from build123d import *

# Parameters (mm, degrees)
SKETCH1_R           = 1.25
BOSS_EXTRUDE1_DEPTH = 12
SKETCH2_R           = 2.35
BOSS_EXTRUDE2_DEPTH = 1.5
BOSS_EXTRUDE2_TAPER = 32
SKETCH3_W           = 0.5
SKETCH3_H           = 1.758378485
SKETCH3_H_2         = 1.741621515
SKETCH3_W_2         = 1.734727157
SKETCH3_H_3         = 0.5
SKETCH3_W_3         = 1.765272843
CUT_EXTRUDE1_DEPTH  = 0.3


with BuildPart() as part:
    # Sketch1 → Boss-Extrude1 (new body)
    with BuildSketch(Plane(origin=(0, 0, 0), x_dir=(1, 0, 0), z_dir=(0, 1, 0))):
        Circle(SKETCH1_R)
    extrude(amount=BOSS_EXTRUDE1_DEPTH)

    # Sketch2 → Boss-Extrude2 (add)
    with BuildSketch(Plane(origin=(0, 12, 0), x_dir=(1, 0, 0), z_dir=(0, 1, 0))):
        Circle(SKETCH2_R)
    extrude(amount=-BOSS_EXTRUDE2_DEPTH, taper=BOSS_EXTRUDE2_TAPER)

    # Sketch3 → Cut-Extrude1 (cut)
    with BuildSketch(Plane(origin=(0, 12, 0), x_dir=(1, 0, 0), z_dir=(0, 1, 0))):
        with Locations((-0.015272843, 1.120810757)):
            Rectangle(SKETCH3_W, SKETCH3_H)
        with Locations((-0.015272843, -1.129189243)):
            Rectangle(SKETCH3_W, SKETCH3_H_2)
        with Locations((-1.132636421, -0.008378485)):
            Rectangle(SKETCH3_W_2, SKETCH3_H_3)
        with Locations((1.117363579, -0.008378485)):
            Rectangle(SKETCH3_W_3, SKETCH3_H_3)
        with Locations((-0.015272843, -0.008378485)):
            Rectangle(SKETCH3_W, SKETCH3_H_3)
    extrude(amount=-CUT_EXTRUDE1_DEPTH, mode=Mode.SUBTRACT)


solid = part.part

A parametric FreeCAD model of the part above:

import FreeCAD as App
import Part
import Sketcher
from FreeCAD import Vector


def add_polygon(sketch, points):
    """Adds a closed chain of lines whose ends are joined by coincident constraints."""
    first, n = sketch.GeometryCount, len(points)
    for a, b in zip(points, points[1:] + points[:1]):
        sketch.addGeometry(Part.LineSegment(App.Vector(*a, 0), App.Vector(*b, 0)), False)
    for i in range(n):
        sketch.addConstraint(Sketcher.Constraint("Coincident", first + i, 2, first + (i + 1) % n, 1))

doc = App.newDocument("Part")
params = doc.addObject("Spreadsheet::Sheet", "Params")
for row, (alias, value) in enumerate([
    ("sketch1_diameter", "2.5 mm"),
    ("pad1_length", "12 mm"),
    ("sketch2_diameter", "4.7 mm"),
    ("pad2_length", "1.5 mm"),
    ("pad2_taper", "-32 deg"),
    ("sketch3_width", "0.5 mm"),
    ("pocket1_length", "0.3 mm"),
], start=1):
    params.set(f"A{row}", alias)
    params.set(f"B{row}", "=" + value)
    params.setAlias(f"B{row}", alias)

body = doc.addObject("PartDesign::Body", "Body")

sketch1 = body.newObject("Sketcher::SketchObject", "Sketch")
sketch1.AttachmentSupport = (doc.getObject("XZ_Plane"), [""])
sketch1.MapMode = "FlatFace"
sketch1.addGeometry(Part.Circle(Vector(0, 0, 0), Vector(0, 0, 1), 1.25), False)
sketch1.addConstraint(Sketcher.Constraint("Coincident", 0, 3, -1, 1))
sketch1.addConstraint(Sketcher.Constraint("Diameter", 0, 2.5))
sketch1.setExpression("Constraints[1]", "Params.sketch1_diameter")
pad1 = body.newObject("PartDesign::Pad", "Pad")
pad1.Profile = sketch1
pad1.setExpression("Length", "Params.pad1_length")
pad1.Reversed = True

sketch2 = body.newObject("Sketcher::SketchObject", "Sketch001")
sketch2.AttachmentSupport = (doc.getObject("XZ_Plane"), [""])
sketch2.MapMode = "FlatFace"
sketch2.AttachmentOffset = App.Placement(Vector(0, 0, -12), App.Rotation())
sketch2.addGeometry(Part.Circle(Vector(0, 0, 0), Vector(0, 0, 1), 2.35), False)
sketch2.addConstraint(Sketcher.Constraint("Coincident", 0, 3, -1, 1))
sketch2.addConstraint(Sketcher.Constraint("Diameter", 0, 4.7))
sketch2.setExpression("Constraints[1]", "Params.sketch2_diameter")
pad2 = body.newObject("PartDesign::Pad", "Pad001")
pad2.Profile = sketch2
pad2.setExpression("Length", "Params.pad2_length")
pad2.setExpression("TaperAngle", "Params.pad2_taper")

sketch3 = body.newObject("Sketcher::SketchObject", "Sketch002")
sketch3.AttachmentSupport = (doc.getObject("XZ_Plane"), [""])
sketch3.MapMode = "FlatFace"
sketch3.AttachmentOffset = App.Placement(Vector(0, 0, -12), App.Rotation())
add_polygon(sketch3, [(-0.265273, -2), (-0.265273, -0.241622), (-2, -0.241622), (-2, 0.258378), (-0.265273, 0.258378), (-0.265273, 2), (0.234727, 2), (0.234727, 0.258378), (2, 0.258378), (2, -0.241622), (0.234727, -0.241622), (0.234727, -2)])
sketch3.addConstraint(Sketcher.Constraint("Vertical", 0))
sketch3.addConstraint(Sketcher.Constraint("Horizontal", 1))
sketch3.addConstraint(Sketcher.Constraint("Vertical", 2))
sketch3.addConstraint(Sketcher.Constraint("Horizontal", 3))
sketch3.addConstraint(Sketcher.Constraint("Vertical", 4))
sketch3.addConstraint(Sketcher.Constraint("Horizontal", 5))
sketch3.addConstraint(Sketcher.Constraint("Vertical", 6))
sketch3.addConstraint(Sketcher.Constraint("Horizontal", 7))
sketch3.addConstraint(Sketcher.Constraint("Vertical", 8))
sketch3.addConstraint(Sketcher.Constraint("Horizontal", 9))
sketch3.addConstraint(Sketcher.Constraint("Vertical", 10))
sketch3.addConstraint(Sketcher.Constraint("Horizontal", 11))
sketch3.addConstraint(Sketcher.Constraint("Symmetric", 2, 2, 7, 2, -2))
sketch3.addConstraint(Sketcher.Constraint("Symmetric", 5, 2, 10, 2, -1))
sketch3.addConstraint(Sketcher.Constraint("Horizontal", 1, 2, 8, 2))
sketch3.addConstraint(Sketcher.Constraint("Vertical", 0, 2, 3, 2))
sketch3.addConstraint(Sketcher.Constraint("Equal", 11, 2))
sketch3.addConstraint(Sketcher.Constraint("DistanceX", 5, 1, 5, 2, 0.5))
sketch3.addConstraint(Sketcher.Constraint("DistanceX", 1, 2, -1, 1, 2.0))
sketch3.addConstraint(Sketcher.Constraint("DistanceY", -1, 1, 4, 2, 2.0))
sketch3.addConstraint(Sketcher.Constraint("DistanceY", 0, 1, 0, 2, 1.758378))
sketch3.addConstraint(Sketcher.Constraint("DistanceX", 1, 2, 1, 1, 1.734727))
sketch3.setExpression("Constraints[29]", "Params.sketch3_width")
pocket1 = body.newObject("PartDesign::Pocket", "Pocket")
pocket1.Profile = sketch3
pocket1.setExpression("Length", "Params.pocket1_length")
pocket1.Reversed = True

doc.recompute()
